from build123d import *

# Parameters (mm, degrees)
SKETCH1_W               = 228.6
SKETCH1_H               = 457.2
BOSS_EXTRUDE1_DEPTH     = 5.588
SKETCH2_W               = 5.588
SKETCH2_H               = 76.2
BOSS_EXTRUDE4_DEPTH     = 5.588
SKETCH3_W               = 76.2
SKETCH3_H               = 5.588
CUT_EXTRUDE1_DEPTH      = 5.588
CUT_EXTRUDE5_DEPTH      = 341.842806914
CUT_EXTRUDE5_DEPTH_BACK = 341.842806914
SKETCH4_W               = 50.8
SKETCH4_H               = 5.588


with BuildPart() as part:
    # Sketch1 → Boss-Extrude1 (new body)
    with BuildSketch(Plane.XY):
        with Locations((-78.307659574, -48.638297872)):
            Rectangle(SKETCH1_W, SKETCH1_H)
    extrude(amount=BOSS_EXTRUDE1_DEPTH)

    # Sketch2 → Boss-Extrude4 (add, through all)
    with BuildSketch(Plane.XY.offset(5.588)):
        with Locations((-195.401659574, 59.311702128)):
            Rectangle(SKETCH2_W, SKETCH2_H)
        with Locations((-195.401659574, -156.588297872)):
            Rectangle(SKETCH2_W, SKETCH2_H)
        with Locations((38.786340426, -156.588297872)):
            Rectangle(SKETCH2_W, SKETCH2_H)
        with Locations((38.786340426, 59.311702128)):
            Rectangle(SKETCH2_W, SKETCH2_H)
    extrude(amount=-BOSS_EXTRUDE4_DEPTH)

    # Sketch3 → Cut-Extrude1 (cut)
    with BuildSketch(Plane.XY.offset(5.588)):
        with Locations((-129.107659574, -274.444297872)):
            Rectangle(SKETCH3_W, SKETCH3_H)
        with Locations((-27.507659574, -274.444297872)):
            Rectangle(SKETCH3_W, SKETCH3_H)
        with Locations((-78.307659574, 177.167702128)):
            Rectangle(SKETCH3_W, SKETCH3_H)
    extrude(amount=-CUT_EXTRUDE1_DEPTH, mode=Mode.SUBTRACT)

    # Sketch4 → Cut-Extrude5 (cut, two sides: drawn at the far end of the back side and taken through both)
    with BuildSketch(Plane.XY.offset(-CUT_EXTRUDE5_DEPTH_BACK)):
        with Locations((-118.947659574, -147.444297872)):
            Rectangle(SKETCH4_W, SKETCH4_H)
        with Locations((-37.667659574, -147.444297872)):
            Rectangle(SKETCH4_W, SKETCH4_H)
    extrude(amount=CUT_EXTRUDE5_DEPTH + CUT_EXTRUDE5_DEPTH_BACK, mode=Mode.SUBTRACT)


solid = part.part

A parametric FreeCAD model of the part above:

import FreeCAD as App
import Part
import Sketcher

V = App.Vector
Q = App.Units.Quantity


def add_polygon(sketch, points):
    """Adds a closed chain of lines whose ends are joined by coincident constraints."""
    first, n = sketch.GeometryCount, len(points)
    for a, b in zip(points, points[1:] + points[:1]):
        sketch.addGeometry(Part.LineSegment(App.Vector(*a, 0), App.Vector(*b, 0)), False)
    for i in range(n):
        sketch.addConstraint(Sketcher.Constraint("Coincident", first + i, 2, first + (i + 1) % n, 1))

doc = App.newDocument("Part")
body = doc.addObject("PartDesign::Body", "Body")

sketch1 = body.newObject("Sketcher::SketchObject", "Sketch")
sketch1.AttachmentSupport = (doc.getObject("XY_Plane"), [""])
sketch1.MapMode = "FlatFace"
add_polygon(sketch1, [(-193, 180), (-193, -277), (36, -277), (36, 180)])
sketch1.addConstraint([
    Sketcher.Constraint("Vertical", 0),
    Sketcher.Constraint("Horizontal", 1),
    Sketcher.Constraint("Vertical", 2),
    Sketcher.Constraint("Horizontal", 3),
    Sketcher.Constraint("DistanceX", 1, 1, 1, 2, Q("9 in")),
    Sketcher.Constraint("DistanceY", 0, 2, 0, 1, Q("18 in")),
    Sketcher.Constraint("DistanceX", 0, 2, -1, 1, 192.60766),
    Sketcher.Constraint("DistanceY", 0, 2, -1, 1, 277.238298),
])
pad1 = body.newObject("PartDesign::Pad", "Pad")
pad1.Profile = sketch1
pad1.Length = Q("0.22 in")

sketch2 = body.newObject("Sketcher::SketchObject", "Sketch001")
sketch2.AttachmentSupport = (doc.getObject("XY_Plane"), [""])
sketch2.MapMode = "FlatFace"
sketch2.AttachmentOffset = App.Placement(V(0, 0, 0.22 * 25.4), App.Rotation())
add_polygon(sketch2, [(-198, 97), (-198, 21), (-193, 21), (-193, 97)])
add_polygon(sketch2, [(-198, -118), (-198, -195), (-193, -195), (-193, -118)])
add_polygon(sketch2, [(36, -118), (36, -195), (42, -195), (42, -118)])
add_polygon(sketch2, [(36, 97), (36, 21), (42, 21), (42, 97)])
sketch2.addConstraint([
    Sketcher.Constraint("Vertical", 0),
    Sketcher.Constraint("Horizontal", 1),
    Sketcher.Constraint("Vertical", 2),
    Sketcher.Constraint("Horizontal", 3),
    Sketcher.Constraint("Vertical", 4),
    Sketcher.Constraint("Horizontal", 5),
    Sketcher.Constraint("Vertical", 6),
    Sketcher.Constraint("Horizontal", 7),
    Sketcher.Constraint("Vertical", 8),
    Sketcher.Constraint("Horizontal", 9),
    Sketcher.Constraint("Vertical", 10),
    Sketcher.Constraint("Horizontal", 11),
    Sketcher.Constraint("Vertical", 12),
    Sketcher.Constraint("Horizontal", 13),
    Sketcher.Constraint("Vertical", 14),
    Sketcher.Constraint("Horizontal", 15),
    Sketcher.Constraint("Horizontal", 5, 2, 8, 2),
    Sketcher.Constraint("Horizontal", 7, 2, 10, 2),
    Sketcher.Constraint("Horizontal", 1, 2, 12, 2),
    Sketcher.Constraint("Horizontal", 3, 2, 14, 2),
    Sketcher.Constraint("Vertical", 3, 2, 4, 2),
    Sketcher.Constraint("Vertical", 2, 2, 5, 2),
    Sketcher.Constraint("Vertical", 11, 2, 12, 2),
    Sketcher.Constraint("Vertical", 10, 2, 13, 2),
    Sketcher.Constraint("Equal", 7, 9),
    Sketcher.Constraint("Equal", 2, 4),
    Sketcher.Constraint("DistanceY", 0, 2, 0, 1, Q("3 in")),
    Sketcher.Constraint("DistanceX", 5, 2, 8, 2, Q("9 in")),
    Sketcher.Constraint("DistanceX", 1, 1, 1, 2, Q("0.22 in")),
    Sketcher.Constraint("DistanceY", 4, 2, 0, 2, Q("8.5 in")),
    Sketcher.Constraint("DistanceX", 0, 2, -1, 1, 198.19566),
    Sketcher.Constraint("DistanceY", -1, 1, 0, 2, 21.211702),
])
pad2 = body.newObject("PartDesign::Pad", "Pad001")
pad2.Profile = sketch2
pad2.Type = "UpToLast"
pad2.Reversed = True

sketch3 = body.newObject("Sketcher::SketchObject", "Sketch002")
sketch3.AttachmentSupport = (doc.getObject("XY_Plane"), [""])
sketch3.MapMode = "FlatFace"
sketch3.AttachmentOffset = App.Placement(V(0, 0, 0.22 * 25.4), App.Rotation())
add_polygon(sketch3, [(-167, -272), (-167, -277), (-91, -277), (-91, -272)])
add_polygon(sketch3, [(-66, -272), (-66, -277), (11, -277), (11, -272)])
add_polygon(sketch3, [(-116, 180), (-116, 174), (-40, 174), (-40, 180)])
sketch3.addConstraint([
    Sketcher.Constraint("Vertical", 0),
    Sketcher.Constraint("Horizontal", 1),
    Sketcher.Constraint("Vertical", 2),
    Sketcher.Constraint("Horizontal", 3),
    Sketcher.Constraint("Vertical", 4),
    Sketcher.Constraint("Horizontal", 5),
    Sketcher.Constraint("Vertical", 6),
    Sketcher.Constraint("Horizontal", 7),
    Sketcher.Constraint("Vertical", 8),
    Sketcher.Constraint("Horizontal", 9),
    Sketcher.Constraint("Vertical", 10),
    Sketcher.Constraint("Horizontal", 11),
    Sketcher.Constraint("Horizontal", 1, 2, 4, 2),
    Sketcher.Constraint("Horizontal", 3, 2, 6, 2),
    Sketcher.Constraint("Equal", 3, 5),
    Sketcher.Constraint("Equal", 7, 9),
    Sketcher.Constraint("Equal", 6, 8),
    Sketcher.Constraint("DistanceX", 1, 1, 1, 2, Q("3 in")),
    Sketcher.Constraint("DistanceX", 1, 2, 4, 2, Q("1 in")),
    Sketcher.Constraint("DistanceX", 8, 2, 2, 2, Q("1 in")),
    Sketcher.Constraint("DistanceY", 0, 2, 0, 1, Q("0.22 in")),
    Sketcher.Constraint("DistanceY", 2, 2, 8, 2, Q("17.56 in")),
    Sketcher.Constraint("DistanceX", 0, 2, -1, 1, 167.20766),
    Sketcher.Constraint("DistanceY", 0, 2, -1, 1, 277.238298),
])
pocket1 = body.newObject("PartDesign::Pocket", "Pocket")
pocket1.Profile = sketch3
pocket1.Length = Q("0.22 in")

sketch4 = body.newObject("Sketcher::SketchObject", "Sketch003")
sketch4.AttachmentSupport = (doc.getObject("XY_Plane"), [""])
sketch4.MapMode = "FlatFace"
add_polygon(sketch4, [(-144, -145), (-144, -150), (-94, -150), (-94, -145)])
add_polygon(sketch4, [(-63, -145), (-63, -150), (-12, -150), (-12, -145)])
sketch4.addConstraint([
    Sketcher.Constraint("Vertical", 0),
    Sketcher.Constraint("Horizontal", 1),
    Sketcher.Constraint("Vertical", 2),
    Sketcher.Constraint("Horizontal", 3),
    Sketcher.Constraint("Vertical", 4),
    Sketcher.Constraint("Horizontal", 5),
    Sketcher.Constraint("Vertical", 6),
    Sketcher.Constraint("Horizontal", 7),
    Sketcher.Constraint("Horizontal", 1, 2, 4, 2),
    Sketcher.Constraint("Horizontal", 3, 2, 6, 2),
    Sketcher.Constraint("Equal", 3, 5),
    Sketcher.Constraint("DistanceX", 1, 1, 1, 2, Q("2 in")),
    Sketcher.Constraint("DistanceY", 0, 2, 0, 1, Q("0.22 in")),
    Sketcher.Constraint("DistanceX", 1, 2, 4, 2, Q("1.2 in")),
    Sketcher.Constraint("DistanceX", 0, 2, -1, 1, 144.34766),
    Sketcher.Constraint("DistanceY", 0, 2, -1, 1, 150.238298),
])
pocket2 = body.newObject("PartDesign::Pocket", "Pocket001")
pocket2.Profile = sketch4
pocket2.Type = "ThroughAll"
pocket2.Midplane = True

doc.recompute()
